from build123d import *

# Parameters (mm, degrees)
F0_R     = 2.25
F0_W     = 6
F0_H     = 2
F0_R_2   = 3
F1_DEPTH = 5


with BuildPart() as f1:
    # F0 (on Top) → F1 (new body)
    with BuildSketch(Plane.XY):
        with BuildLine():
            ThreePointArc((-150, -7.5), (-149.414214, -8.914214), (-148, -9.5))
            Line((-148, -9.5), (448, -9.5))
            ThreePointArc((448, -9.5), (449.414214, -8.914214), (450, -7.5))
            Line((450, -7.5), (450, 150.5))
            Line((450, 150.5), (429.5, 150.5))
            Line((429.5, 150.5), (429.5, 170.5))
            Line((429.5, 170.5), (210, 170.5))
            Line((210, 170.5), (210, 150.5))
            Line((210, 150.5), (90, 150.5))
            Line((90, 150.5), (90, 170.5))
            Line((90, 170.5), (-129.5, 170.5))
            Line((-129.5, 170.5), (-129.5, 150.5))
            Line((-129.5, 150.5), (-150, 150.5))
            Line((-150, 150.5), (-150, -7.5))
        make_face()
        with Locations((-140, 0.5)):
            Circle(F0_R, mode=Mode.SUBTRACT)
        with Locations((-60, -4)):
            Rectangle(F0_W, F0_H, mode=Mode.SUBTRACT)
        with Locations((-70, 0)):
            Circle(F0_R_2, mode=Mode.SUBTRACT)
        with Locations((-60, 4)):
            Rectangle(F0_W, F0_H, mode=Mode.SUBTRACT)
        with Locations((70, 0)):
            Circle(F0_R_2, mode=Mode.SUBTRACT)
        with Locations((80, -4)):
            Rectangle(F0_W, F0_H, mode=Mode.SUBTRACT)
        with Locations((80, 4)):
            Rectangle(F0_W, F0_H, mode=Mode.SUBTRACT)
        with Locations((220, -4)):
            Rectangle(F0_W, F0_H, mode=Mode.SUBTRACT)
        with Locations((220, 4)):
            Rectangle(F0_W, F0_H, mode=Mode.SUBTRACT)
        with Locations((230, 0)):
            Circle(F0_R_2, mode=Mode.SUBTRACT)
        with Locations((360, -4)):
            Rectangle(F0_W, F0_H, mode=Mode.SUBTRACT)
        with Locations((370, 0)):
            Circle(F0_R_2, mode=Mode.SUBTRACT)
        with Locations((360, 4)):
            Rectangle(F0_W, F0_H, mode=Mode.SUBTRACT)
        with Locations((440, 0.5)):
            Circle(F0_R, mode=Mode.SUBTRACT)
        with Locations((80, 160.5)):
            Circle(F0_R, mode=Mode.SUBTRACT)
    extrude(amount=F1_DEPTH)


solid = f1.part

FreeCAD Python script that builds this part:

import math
import FreeCAD as App
import Part
import Sketcher
from FreeCAD import Vector
Q = App.Units.Quantity

doc = App.newDocument("Part")
body = doc.addObject("PartDesign::Body", "Body")

# Sketch on XY plane
sketch1 = doc.addObject("Sketcher::SketchObject", "Sketch")
body.addObject(sketch1)
sketch1.AttachmentSupport = (doc.XY_Plane, [""])
sketch1.MapMode = "FlatFace"
sketch1.addGeometry([
    Part.ArcOfCircle(Part.Circle(Vector(-148, -7.5, 0), Vector(0, 0, 1), 2), math.radians(180), math.radians(270)),  # 0
    Part.LineSegment(Vector(-148, -9.5, 0), Vector(448, -9.5, 0)),  # 1
    Part.ArcOfCircle(Part.Circle(Vector(448, -7.5, 0), Vector(0, 0, 1), 2), math.radians(-90), math.radians(0)),  # 2
    Part.LineSegment(Vector(450, -7.5, 0), Vector(450, 150.5, 0)),  # 3
    Part.LineSegment(Vector(450, 150.5, 0), Vector(429.5, 150.5, 0)),  # 4
    Part.LineSegment(Vector(429.5, 150.5, 0), Vector(429.5, 170.5, 0)),  # 5
    Part.LineSegment(Vector(429.5, 170.5, 0), Vector(210, 170.5, 0)),  # 6
    Part.LineSegment(Vector(210, 170.5, 0), Vector(210, 150.5, 0)),  # 7
    Part.LineSegment(Vector(210, 150.5, 0), Vector(90, 150.5, 0)),  # 8
    Part.LineSegment(Vector(90, 150.5, 0), Vector(90, 170.5, 0)),  # 9
    Part.LineSegment(Vector(90, 170.5, 0), Vector(-129.5, 170.5, 0)),  # 10
    Part.LineSegment(Vector(-129.5, 170.5, 0), Vector(-129.5, 150.5, 0)),  # 11
    Part.LineSegment(Vector(-129.5, 150.5, 0), Vector(-150, 150.5, 0)),  # 12
    Part.LineSegment(Vector(-150, 150.5, 0), Vector(-150, -7.5, 0)),  # 13
    Part.Circle(Vector(-140, 0.5, 0), Vector(0, 0, 1), 2.2),  # 14
    Part.Circle(Vector(-70, 0, 0), Vector(0, 0, 1), 3),  # 15
    Part.LineSegment(Vector(-57, -5, 0), Vector(-63, -5, 0)),  # 16
    Part.LineSegment(Vector(-63, -5, 0), Vector(-63, -3, 0)),  # 17
    Part.LineSegment(Vector(-63, -3, 0), Vector(-57, -3, 0)),  # 18
    Part.LineSegment(Vector(-57, -3, 0), Vector(-57, -5, 0)),  # 19
    Part.LineSegment(Vector(-57, 3, 0), Vector(-63, 3, 0)),  # 20
    Part.LineSegment(Vector(-63, 3, 0), Vector(-63, 5, 0)),  # 21
    Part.LineSegment(Vector(-63, 5, 0), Vector(-57, 5, 0)),  # 22
    Part.LineSegment(Vector(-57, 5, 0), Vector(-57, 3, 0)),  # 23
    Part.Circle(Vector(70, 0, 0), Vector(0, 0, 1), 3),  # 24
    Part.LineSegment(Vector(83, -5, 0), Vector(77, -5, 0)),  # 25
    Part.LineSegment(Vector(77, -5, 0), Vector(77, -3, 0)),  # 26
    Part.LineSegment(Vector(77, -3, 0), Vector(83, -3, 0)),  # 27
    Part.LineSegment(Vector(83, -3, 0), Vector(83, -5, 0)),  # 28
    Part.LineSegment(Vector(83, 3, 0), Vector(77, 3, 0)),  # 29
    Part.LineSegment(Vector(77, 3, 0), Vector(77, 5, 0)),  # 30
    Part.LineSegment(Vector(77, 5, 0), Vector(83, 5, 0)),  # 31
    Part.LineSegment(Vector(83, 5, 0), Vector(83, 3, 0)),  # 32
    Part.LineSegment(Vector(223, -5, 0), Vector(217, -5, 0)),  # 33
    Part.LineSegment(Vector(217, -5, 0), Vector(217, -3, 0)),  # 34
    Part.LineSegment(Vector(217, -3, 0), Vector(223, -3, 0)),  # 35
    Part.LineSegment(Vector(223, -3, 0), Vector(223, -5, 0)),  # 36
    Part.LineSegment(Vector(223, 3, 0), Vector(217, 3, 0)),  # 37
    Part.LineSegment(Vector(217, 3, 0), Vector(217, 5, 0)),  # 38
    Part.LineSegment(Vector(217, 5, 0), Vector(223, 5, 0)),  # 39
    Part.LineSegment(Vector(223, 5, 0), Vector(223, 3, 0)),  # 40
    Part.Circle(Vector(230, 0, 0), Vector(0, 0, 1), 3),  # 41
    Part.LineSegment(Vector(363, -5, 0), Vector(357, -5, 0)),  # 42
    Part.LineSegment(Vector(357, -5, 0), Vector(357, -3, 0)),  # 43
    Part.LineSegment(Vector(357, -3, 0), Vector(363, -3, 0)),  # 44
    Part.LineSegment(Vector(363, -3, 0), Vector(363, -5, 0)),  # 45
    Part.LineSegment(Vector(363, 3, 0), Vector(357, 3, 0)),  # 46
    Part.LineSegment(Vector(357, 3, 0), Vector(357, 5, 0)),  # 47
    Part.LineSegment(Vector(357, 5, 0), Vector(363, 5, 0)),  # 48
    Part.LineSegment(Vector(363, 5, 0), Vector(363, 3, 0)),  # 49
    Part.Circle(Vector(370, 0, 0), Vector(0, 0, 1), 3),  # 50
    Part.Circle(Vector(440, 0.5, 0), Vector(0, 0, 1), 2.2),  # 51
    Part.Circle(Vector(80, 160.5, 0), Vector(0, 0, 1), 2.2),  # 52
], False)
sketch1.addConstraint([
    Sketcher.Constraint("Tangent", 0, 2, 1, 1),
    Sketcher.Constraint("Tangent", 1, 2, 2, 1),
    Sketcher.Constraint("Tangent", 2, 2, 3, 1),
    Sketcher.Constraint("Coincident", 3, 2, 4, 1),
    Sketcher.Constraint("Coincident", 4, 2, 5, 1),
    Sketcher.Constraint("Coincident", 5, 2, 6, 1),
    Sketcher.Constraint("Coincident", 6, 2, 7, 1),
    Sketcher.Constraint("Coincident", 7, 2, 8, 1),
    Sketcher.Constraint("Coincident", 8, 2, 9, 1),
    Sketcher.Constraint("Coincident", 9, 2, 10, 1),
    Sketcher.Constraint("Coincident", 10, 2, 11, 1),
    Sketcher.Constraint("Coincident", 11, 2, 12, 1),
    Sketcher.Constraint("Coincident", 12, 2, 13, 1),
    Sketcher.Constraint("Tangent", 13, 2, 0, 1),
    Sketcher.Constraint("Coincident", 16, 2, 17, 1),
    Sketcher.Constraint("Coincident", 17, 2, 18, 1),
    Sketcher.Constraint("Coincident", 18, 2, 19, 1),
    Sketcher.Constraint("Coincident", 19, 2, 16, 1),
    Sketcher.Constraint("Coincident", 20, 2, 21, 1),
    Sketcher.Constraint("Coincident", 21, 2, 22, 1),
    Sketcher.Constraint("Coincident", 22, 2, 23, 1),
    Sketcher.Constraint("Coincident", 23, 2, 20, 1),
    Sketcher.Constraint("Coincident", 25, 2, 26, 1),
    Sketcher.Constraint("Coincident", 26, 2, 27, 1),
    Sketcher.Constraint("Coincident", 27, 2, 28, 1),
    Sketcher.Constraint("Coincident", 28, 2, 25, 1),
    Sketcher.Constraint("Coincident", 29, 2, 30, 1),
    Sketcher.Constraint("Coincident", 30, 2, 31, 1),
    Sketcher.Constraint("Coincident", 31, 2, 32, 1),
    Sketcher.Constraint("Coincident", 32, 2, 29, 1),
    Sketcher.Constraint("Coincident", 33, 2, 34, 1),
    Sketcher.Constraint("Coincident", 34, 2, 35, 1),
    Sketcher.Constraint("Coincident", 35, 2, 36, 1),
    Sketcher.Constraint("Coincident", 36, 2, 33, 1),
    Sketcher.Constraint("Coincident", 37, 2, 38, 1),
    Sketcher.Constraint("Coincident", 38, 2, 39, 1),
    Sketcher.Constraint("Coincident", 39, 2, 40, 1),
    Sketcher.Constraint("Coincident", 40, 2, 37, 1),
    Sketcher.Constraint("Coincident", 42, 2, 43, 1),
    Sketcher.Constraint("Coincident", 43, 2, 44, 1),
    Sketcher.Constraint("Coincident", 44, 2, 45, 1),
    Sketcher.Constraint("Coincident", 45, 2, 42, 1),
    Sketcher.Constraint("Coincident", 46, 2, 47, 1),
    Sketcher.Constraint("Coincident", 47, 2, 48, 1),
    Sketcher.Constraint("Coincident", 48, 2, 49, 1),
    Sketcher.Constraint("Coincident", 49, 2, 46, 1),
    Sketcher.Constraint("Horizontal", 1),
    Sketcher.Constraint("Vertical", 3),
    Sketcher.Constraint("Horizontal", 4),
    Sketcher.Constraint("Vertical", 5),
    Sketcher.Constraint("Horizontal", 6),
    Sketcher.Constraint("Vertical", 7),
    Sketcher.Constraint("Horizontal", 8),
    Sketcher.Constraint("Vertical", 9),
    Sketcher.Constraint("Horizontal", 10),
    Sketcher.Constraint("Vertical", 11),
    Sketcher.Constraint("Horizontal", 12),
    Sketcher.Constraint("Vertical", 13),
    Sketcher.Constraint("Horizontal", 16),
    Sketcher.Constraint("Vertical", 17),
    Sketcher.Constraint("Horizontal", 18),
    Sketcher.Constraint("Vertical", 19),
    Sketcher.Constraint("Horizontal", 20),
    Sketcher.Constraint("Vertical", 21),
    Sketcher.Constraint("Horizontal", 22),
    Sketcher.Constraint("Vertical", 23),
    Sketcher.Constraint("Horizontal", 25),
    Sketcher.Constraint("Vertical", 26),
    Sketcher.Constraint("Horizontal", 27),
    Sketcher.Constraint("Vertical", 28),
    Sketcher.Constraint("Horizontal", 29),
    Sketcher.Constraint("Vertical", 30),
    Sketcher.Constraint("Horizontal", 31),
    Sketcher.Constraint("Vertical", 32),
    Sketcher.Constraint("Horizontal", 33),
    Sketcher.Constraint("Vertical", 34),
    Sketcher.Constraint("Horizontal", 35),
    Sketcher.Constraint("Vertical", 36),
    Sketcher.Constraint("Horizontal", 37),
    Sketcher.Constraint("Vertical", 38),
    Sketcher.Constraint("Horizontal", 39),
    Sketcher.Constraint("Vertical", 40),
    Sketcher.Constraint("Horizontal", 42),
    Sketcher.Constraint("Vertical", 43),
    Sketcher.Constraint("Horizontal", 44),
    Sketcher.Constraint("Vertical", 45),
    Sketcher.Constraint("Horizontal", 46),
    Sketcher.Constraint("Vertical", 47),
    Sketcher.Constraint("Horizontal", 48),
    Sketcher.Constraint("Vertical", 49),
    Sketcher.Constraint("Equal", 0, 2),
    Sketcher.Constraint("Equal", 15, 24),
    Sketcher.Constraint("Equal", 24, 41),
    Sketcher.Constraint("Equal", 41, 50),
    Sketcher.Constraint("Equal", 14, 51),
    Sketcher.Constraint("Equal", 51, 52),
    Sketcher.Constraint("Symmetric", 15, 3, 24, 3, -1, 1),
    Sketcher.Constraint("Symmetric", 17, 2, 20, 2, -1),
    Sketcher.Constraint("Symmetric", 19, 2, 22, 2, -1),
    Sketcher.Constraint("Symmetric", 26, 2, 29, 2, -1),
    Sketcher.Constraint("Symmetric", 28, 2, 31, 2, -1),
    Sketcher.Constraint("Symmetric", 34, 2, 37, 2, -1),
    Sketcher.Constraint("Symmetric", 36, 2, 39, 2, -1),
    Sketcher.Constraint("Symmetric", 43, 2, 46, 2, -1),
    Sketcher.Constraint("Symmetric", 45, 2, 48, 2, -1),
    Sketcher.Constraint("PointOnObject", 15, 3, -1),
    Sketcher.Constraint("PointOnObject", 41, 3, -1),
    Sketcher.Constraint("PointOnObject", 50, 3, -1),
    Sketcher.Constraint("Horizontal", 14, 3, 51, 3),
    Sketcher.Constraint("Horizontal", 4, 2, 7, 2),
    Sketcher.Constraint("Horizontal", 6, 2, 9, 2),
    Sketcher.Constraint("Horizontal", 8, 2, 11, 2),
    Sketcher.Constraint("Horizontal", 19, 2, 25, 2),
    Sketcher.Constraint("Horizontal", 18, 2, 26, 2),
    Sketcher.Constraint("Horizontal", 28, 2, 33, 2),
    Sketcher.Constraint("Horizontal", 27, 2, 34, 2),
    Sketcher.Constraint("Horizontal", 36, 2, 42, 2),
    Sketcher.Constraint("Horizontal", 35, 2, 43, 2),
    Sketcher.Constraint("Equal", 6, 10),
    Sketcher.Constraint("Equal", 4, 12),
    Sketcher.Constraint("Equal", 22, 25),
    Sketcher.Constraint("Equal", 31, 33),
    Sketcher.Constraint("Equal", 39, 42),
    Sketcher.Constraint("Diameter", 15, Q("6 mm")),
    Sketcher.Constraint("Radius", 0, Q("1.999999 mm")),
    Sketcher.Constraint("Diameter", 14, Q("4.5 mm")),
    Sketcher.Constraint("DistanceX", 1, 1, 1, 2, Q("596 mm")),
    Sketcher.Constraint("DistanceX", 8, 2, 8, 1, Q("120 mm")),
    Sketcher.Constraint("DistanceX", 16, 2, 16, 1, Q("6 mm")),
    Sketcher.Constraint("DistanceY", 3, 1, 3, 2, Q("158 mm")),
    Sketcher.Constraint("DistanceY", 5, 1, 5, 2, Q("20 mm")),
    Sketcher.Constraint("DistanceY", 17, 1, 17, 2, Q("2 mm")),
    Sketcher.Constraint("DistanceX", 4, 2, 4, 1, Q("20.5 mm")),
    Sketcher.Constraint("DistanceX", 0, 3, -1, 1, Q("148.000001 mm")),
    Sketcher.Constraint("DistanceX", 14, 3, -1, 1, Q("140 mm")),
    Sketcher.Constraint("DistanceX", 15, 3, -1, 1, Q("70 mm")),
    Sketcher.Constraint("DistanceX", -1, 1, 41, 3, Q("230 mm")),
    Sketcher.Constraint("DistanceX", -1, 1, 50, 3, Q("370 mm")),
    Sketcher.Constraint("DistanceX", -1, 1, 51, 3, Q("440 mm")),
    Sketcher.Constraint("DistanceX", -1, 1, 52, 3, Q("80 mm")),
    Sketcher.Constraint("DistanceX", 16, 2, -1, 1, Q("63 mm")),
    Sketcher.Constraint("DistanceY", 16, 2, -1, 1, Q("5 mm")),
    Sketcher.Constraint("DistanceX", -1, 1, 25, 2, Q("77 mm")),
    Sketcher.Constraint("DistanceX", -1, 1, 33, 2, Q("217 mm")),
    Sketcher.Constraint("DistanceX", -1, 1, 42, 2, Q("357 mm")),
    Sketcher.Constraint("DistanceY", 0, 3, 14, 3, Q("8.000001 mm")),
    Sketcher.Constraint("DistanceY", 14, 3, 52, 3, Q("160 mm")),
    Sketcher.Constraint("DistanceY", 0, 3, -1, 1, Q("7.500001 mm")),
])
pad1 = doc.addObject("PartDesign::Pad", "Pad")
body.addObject(pad1)
pad1.Profile = sketch1
pad1.Length = 5

doc.recompute()
